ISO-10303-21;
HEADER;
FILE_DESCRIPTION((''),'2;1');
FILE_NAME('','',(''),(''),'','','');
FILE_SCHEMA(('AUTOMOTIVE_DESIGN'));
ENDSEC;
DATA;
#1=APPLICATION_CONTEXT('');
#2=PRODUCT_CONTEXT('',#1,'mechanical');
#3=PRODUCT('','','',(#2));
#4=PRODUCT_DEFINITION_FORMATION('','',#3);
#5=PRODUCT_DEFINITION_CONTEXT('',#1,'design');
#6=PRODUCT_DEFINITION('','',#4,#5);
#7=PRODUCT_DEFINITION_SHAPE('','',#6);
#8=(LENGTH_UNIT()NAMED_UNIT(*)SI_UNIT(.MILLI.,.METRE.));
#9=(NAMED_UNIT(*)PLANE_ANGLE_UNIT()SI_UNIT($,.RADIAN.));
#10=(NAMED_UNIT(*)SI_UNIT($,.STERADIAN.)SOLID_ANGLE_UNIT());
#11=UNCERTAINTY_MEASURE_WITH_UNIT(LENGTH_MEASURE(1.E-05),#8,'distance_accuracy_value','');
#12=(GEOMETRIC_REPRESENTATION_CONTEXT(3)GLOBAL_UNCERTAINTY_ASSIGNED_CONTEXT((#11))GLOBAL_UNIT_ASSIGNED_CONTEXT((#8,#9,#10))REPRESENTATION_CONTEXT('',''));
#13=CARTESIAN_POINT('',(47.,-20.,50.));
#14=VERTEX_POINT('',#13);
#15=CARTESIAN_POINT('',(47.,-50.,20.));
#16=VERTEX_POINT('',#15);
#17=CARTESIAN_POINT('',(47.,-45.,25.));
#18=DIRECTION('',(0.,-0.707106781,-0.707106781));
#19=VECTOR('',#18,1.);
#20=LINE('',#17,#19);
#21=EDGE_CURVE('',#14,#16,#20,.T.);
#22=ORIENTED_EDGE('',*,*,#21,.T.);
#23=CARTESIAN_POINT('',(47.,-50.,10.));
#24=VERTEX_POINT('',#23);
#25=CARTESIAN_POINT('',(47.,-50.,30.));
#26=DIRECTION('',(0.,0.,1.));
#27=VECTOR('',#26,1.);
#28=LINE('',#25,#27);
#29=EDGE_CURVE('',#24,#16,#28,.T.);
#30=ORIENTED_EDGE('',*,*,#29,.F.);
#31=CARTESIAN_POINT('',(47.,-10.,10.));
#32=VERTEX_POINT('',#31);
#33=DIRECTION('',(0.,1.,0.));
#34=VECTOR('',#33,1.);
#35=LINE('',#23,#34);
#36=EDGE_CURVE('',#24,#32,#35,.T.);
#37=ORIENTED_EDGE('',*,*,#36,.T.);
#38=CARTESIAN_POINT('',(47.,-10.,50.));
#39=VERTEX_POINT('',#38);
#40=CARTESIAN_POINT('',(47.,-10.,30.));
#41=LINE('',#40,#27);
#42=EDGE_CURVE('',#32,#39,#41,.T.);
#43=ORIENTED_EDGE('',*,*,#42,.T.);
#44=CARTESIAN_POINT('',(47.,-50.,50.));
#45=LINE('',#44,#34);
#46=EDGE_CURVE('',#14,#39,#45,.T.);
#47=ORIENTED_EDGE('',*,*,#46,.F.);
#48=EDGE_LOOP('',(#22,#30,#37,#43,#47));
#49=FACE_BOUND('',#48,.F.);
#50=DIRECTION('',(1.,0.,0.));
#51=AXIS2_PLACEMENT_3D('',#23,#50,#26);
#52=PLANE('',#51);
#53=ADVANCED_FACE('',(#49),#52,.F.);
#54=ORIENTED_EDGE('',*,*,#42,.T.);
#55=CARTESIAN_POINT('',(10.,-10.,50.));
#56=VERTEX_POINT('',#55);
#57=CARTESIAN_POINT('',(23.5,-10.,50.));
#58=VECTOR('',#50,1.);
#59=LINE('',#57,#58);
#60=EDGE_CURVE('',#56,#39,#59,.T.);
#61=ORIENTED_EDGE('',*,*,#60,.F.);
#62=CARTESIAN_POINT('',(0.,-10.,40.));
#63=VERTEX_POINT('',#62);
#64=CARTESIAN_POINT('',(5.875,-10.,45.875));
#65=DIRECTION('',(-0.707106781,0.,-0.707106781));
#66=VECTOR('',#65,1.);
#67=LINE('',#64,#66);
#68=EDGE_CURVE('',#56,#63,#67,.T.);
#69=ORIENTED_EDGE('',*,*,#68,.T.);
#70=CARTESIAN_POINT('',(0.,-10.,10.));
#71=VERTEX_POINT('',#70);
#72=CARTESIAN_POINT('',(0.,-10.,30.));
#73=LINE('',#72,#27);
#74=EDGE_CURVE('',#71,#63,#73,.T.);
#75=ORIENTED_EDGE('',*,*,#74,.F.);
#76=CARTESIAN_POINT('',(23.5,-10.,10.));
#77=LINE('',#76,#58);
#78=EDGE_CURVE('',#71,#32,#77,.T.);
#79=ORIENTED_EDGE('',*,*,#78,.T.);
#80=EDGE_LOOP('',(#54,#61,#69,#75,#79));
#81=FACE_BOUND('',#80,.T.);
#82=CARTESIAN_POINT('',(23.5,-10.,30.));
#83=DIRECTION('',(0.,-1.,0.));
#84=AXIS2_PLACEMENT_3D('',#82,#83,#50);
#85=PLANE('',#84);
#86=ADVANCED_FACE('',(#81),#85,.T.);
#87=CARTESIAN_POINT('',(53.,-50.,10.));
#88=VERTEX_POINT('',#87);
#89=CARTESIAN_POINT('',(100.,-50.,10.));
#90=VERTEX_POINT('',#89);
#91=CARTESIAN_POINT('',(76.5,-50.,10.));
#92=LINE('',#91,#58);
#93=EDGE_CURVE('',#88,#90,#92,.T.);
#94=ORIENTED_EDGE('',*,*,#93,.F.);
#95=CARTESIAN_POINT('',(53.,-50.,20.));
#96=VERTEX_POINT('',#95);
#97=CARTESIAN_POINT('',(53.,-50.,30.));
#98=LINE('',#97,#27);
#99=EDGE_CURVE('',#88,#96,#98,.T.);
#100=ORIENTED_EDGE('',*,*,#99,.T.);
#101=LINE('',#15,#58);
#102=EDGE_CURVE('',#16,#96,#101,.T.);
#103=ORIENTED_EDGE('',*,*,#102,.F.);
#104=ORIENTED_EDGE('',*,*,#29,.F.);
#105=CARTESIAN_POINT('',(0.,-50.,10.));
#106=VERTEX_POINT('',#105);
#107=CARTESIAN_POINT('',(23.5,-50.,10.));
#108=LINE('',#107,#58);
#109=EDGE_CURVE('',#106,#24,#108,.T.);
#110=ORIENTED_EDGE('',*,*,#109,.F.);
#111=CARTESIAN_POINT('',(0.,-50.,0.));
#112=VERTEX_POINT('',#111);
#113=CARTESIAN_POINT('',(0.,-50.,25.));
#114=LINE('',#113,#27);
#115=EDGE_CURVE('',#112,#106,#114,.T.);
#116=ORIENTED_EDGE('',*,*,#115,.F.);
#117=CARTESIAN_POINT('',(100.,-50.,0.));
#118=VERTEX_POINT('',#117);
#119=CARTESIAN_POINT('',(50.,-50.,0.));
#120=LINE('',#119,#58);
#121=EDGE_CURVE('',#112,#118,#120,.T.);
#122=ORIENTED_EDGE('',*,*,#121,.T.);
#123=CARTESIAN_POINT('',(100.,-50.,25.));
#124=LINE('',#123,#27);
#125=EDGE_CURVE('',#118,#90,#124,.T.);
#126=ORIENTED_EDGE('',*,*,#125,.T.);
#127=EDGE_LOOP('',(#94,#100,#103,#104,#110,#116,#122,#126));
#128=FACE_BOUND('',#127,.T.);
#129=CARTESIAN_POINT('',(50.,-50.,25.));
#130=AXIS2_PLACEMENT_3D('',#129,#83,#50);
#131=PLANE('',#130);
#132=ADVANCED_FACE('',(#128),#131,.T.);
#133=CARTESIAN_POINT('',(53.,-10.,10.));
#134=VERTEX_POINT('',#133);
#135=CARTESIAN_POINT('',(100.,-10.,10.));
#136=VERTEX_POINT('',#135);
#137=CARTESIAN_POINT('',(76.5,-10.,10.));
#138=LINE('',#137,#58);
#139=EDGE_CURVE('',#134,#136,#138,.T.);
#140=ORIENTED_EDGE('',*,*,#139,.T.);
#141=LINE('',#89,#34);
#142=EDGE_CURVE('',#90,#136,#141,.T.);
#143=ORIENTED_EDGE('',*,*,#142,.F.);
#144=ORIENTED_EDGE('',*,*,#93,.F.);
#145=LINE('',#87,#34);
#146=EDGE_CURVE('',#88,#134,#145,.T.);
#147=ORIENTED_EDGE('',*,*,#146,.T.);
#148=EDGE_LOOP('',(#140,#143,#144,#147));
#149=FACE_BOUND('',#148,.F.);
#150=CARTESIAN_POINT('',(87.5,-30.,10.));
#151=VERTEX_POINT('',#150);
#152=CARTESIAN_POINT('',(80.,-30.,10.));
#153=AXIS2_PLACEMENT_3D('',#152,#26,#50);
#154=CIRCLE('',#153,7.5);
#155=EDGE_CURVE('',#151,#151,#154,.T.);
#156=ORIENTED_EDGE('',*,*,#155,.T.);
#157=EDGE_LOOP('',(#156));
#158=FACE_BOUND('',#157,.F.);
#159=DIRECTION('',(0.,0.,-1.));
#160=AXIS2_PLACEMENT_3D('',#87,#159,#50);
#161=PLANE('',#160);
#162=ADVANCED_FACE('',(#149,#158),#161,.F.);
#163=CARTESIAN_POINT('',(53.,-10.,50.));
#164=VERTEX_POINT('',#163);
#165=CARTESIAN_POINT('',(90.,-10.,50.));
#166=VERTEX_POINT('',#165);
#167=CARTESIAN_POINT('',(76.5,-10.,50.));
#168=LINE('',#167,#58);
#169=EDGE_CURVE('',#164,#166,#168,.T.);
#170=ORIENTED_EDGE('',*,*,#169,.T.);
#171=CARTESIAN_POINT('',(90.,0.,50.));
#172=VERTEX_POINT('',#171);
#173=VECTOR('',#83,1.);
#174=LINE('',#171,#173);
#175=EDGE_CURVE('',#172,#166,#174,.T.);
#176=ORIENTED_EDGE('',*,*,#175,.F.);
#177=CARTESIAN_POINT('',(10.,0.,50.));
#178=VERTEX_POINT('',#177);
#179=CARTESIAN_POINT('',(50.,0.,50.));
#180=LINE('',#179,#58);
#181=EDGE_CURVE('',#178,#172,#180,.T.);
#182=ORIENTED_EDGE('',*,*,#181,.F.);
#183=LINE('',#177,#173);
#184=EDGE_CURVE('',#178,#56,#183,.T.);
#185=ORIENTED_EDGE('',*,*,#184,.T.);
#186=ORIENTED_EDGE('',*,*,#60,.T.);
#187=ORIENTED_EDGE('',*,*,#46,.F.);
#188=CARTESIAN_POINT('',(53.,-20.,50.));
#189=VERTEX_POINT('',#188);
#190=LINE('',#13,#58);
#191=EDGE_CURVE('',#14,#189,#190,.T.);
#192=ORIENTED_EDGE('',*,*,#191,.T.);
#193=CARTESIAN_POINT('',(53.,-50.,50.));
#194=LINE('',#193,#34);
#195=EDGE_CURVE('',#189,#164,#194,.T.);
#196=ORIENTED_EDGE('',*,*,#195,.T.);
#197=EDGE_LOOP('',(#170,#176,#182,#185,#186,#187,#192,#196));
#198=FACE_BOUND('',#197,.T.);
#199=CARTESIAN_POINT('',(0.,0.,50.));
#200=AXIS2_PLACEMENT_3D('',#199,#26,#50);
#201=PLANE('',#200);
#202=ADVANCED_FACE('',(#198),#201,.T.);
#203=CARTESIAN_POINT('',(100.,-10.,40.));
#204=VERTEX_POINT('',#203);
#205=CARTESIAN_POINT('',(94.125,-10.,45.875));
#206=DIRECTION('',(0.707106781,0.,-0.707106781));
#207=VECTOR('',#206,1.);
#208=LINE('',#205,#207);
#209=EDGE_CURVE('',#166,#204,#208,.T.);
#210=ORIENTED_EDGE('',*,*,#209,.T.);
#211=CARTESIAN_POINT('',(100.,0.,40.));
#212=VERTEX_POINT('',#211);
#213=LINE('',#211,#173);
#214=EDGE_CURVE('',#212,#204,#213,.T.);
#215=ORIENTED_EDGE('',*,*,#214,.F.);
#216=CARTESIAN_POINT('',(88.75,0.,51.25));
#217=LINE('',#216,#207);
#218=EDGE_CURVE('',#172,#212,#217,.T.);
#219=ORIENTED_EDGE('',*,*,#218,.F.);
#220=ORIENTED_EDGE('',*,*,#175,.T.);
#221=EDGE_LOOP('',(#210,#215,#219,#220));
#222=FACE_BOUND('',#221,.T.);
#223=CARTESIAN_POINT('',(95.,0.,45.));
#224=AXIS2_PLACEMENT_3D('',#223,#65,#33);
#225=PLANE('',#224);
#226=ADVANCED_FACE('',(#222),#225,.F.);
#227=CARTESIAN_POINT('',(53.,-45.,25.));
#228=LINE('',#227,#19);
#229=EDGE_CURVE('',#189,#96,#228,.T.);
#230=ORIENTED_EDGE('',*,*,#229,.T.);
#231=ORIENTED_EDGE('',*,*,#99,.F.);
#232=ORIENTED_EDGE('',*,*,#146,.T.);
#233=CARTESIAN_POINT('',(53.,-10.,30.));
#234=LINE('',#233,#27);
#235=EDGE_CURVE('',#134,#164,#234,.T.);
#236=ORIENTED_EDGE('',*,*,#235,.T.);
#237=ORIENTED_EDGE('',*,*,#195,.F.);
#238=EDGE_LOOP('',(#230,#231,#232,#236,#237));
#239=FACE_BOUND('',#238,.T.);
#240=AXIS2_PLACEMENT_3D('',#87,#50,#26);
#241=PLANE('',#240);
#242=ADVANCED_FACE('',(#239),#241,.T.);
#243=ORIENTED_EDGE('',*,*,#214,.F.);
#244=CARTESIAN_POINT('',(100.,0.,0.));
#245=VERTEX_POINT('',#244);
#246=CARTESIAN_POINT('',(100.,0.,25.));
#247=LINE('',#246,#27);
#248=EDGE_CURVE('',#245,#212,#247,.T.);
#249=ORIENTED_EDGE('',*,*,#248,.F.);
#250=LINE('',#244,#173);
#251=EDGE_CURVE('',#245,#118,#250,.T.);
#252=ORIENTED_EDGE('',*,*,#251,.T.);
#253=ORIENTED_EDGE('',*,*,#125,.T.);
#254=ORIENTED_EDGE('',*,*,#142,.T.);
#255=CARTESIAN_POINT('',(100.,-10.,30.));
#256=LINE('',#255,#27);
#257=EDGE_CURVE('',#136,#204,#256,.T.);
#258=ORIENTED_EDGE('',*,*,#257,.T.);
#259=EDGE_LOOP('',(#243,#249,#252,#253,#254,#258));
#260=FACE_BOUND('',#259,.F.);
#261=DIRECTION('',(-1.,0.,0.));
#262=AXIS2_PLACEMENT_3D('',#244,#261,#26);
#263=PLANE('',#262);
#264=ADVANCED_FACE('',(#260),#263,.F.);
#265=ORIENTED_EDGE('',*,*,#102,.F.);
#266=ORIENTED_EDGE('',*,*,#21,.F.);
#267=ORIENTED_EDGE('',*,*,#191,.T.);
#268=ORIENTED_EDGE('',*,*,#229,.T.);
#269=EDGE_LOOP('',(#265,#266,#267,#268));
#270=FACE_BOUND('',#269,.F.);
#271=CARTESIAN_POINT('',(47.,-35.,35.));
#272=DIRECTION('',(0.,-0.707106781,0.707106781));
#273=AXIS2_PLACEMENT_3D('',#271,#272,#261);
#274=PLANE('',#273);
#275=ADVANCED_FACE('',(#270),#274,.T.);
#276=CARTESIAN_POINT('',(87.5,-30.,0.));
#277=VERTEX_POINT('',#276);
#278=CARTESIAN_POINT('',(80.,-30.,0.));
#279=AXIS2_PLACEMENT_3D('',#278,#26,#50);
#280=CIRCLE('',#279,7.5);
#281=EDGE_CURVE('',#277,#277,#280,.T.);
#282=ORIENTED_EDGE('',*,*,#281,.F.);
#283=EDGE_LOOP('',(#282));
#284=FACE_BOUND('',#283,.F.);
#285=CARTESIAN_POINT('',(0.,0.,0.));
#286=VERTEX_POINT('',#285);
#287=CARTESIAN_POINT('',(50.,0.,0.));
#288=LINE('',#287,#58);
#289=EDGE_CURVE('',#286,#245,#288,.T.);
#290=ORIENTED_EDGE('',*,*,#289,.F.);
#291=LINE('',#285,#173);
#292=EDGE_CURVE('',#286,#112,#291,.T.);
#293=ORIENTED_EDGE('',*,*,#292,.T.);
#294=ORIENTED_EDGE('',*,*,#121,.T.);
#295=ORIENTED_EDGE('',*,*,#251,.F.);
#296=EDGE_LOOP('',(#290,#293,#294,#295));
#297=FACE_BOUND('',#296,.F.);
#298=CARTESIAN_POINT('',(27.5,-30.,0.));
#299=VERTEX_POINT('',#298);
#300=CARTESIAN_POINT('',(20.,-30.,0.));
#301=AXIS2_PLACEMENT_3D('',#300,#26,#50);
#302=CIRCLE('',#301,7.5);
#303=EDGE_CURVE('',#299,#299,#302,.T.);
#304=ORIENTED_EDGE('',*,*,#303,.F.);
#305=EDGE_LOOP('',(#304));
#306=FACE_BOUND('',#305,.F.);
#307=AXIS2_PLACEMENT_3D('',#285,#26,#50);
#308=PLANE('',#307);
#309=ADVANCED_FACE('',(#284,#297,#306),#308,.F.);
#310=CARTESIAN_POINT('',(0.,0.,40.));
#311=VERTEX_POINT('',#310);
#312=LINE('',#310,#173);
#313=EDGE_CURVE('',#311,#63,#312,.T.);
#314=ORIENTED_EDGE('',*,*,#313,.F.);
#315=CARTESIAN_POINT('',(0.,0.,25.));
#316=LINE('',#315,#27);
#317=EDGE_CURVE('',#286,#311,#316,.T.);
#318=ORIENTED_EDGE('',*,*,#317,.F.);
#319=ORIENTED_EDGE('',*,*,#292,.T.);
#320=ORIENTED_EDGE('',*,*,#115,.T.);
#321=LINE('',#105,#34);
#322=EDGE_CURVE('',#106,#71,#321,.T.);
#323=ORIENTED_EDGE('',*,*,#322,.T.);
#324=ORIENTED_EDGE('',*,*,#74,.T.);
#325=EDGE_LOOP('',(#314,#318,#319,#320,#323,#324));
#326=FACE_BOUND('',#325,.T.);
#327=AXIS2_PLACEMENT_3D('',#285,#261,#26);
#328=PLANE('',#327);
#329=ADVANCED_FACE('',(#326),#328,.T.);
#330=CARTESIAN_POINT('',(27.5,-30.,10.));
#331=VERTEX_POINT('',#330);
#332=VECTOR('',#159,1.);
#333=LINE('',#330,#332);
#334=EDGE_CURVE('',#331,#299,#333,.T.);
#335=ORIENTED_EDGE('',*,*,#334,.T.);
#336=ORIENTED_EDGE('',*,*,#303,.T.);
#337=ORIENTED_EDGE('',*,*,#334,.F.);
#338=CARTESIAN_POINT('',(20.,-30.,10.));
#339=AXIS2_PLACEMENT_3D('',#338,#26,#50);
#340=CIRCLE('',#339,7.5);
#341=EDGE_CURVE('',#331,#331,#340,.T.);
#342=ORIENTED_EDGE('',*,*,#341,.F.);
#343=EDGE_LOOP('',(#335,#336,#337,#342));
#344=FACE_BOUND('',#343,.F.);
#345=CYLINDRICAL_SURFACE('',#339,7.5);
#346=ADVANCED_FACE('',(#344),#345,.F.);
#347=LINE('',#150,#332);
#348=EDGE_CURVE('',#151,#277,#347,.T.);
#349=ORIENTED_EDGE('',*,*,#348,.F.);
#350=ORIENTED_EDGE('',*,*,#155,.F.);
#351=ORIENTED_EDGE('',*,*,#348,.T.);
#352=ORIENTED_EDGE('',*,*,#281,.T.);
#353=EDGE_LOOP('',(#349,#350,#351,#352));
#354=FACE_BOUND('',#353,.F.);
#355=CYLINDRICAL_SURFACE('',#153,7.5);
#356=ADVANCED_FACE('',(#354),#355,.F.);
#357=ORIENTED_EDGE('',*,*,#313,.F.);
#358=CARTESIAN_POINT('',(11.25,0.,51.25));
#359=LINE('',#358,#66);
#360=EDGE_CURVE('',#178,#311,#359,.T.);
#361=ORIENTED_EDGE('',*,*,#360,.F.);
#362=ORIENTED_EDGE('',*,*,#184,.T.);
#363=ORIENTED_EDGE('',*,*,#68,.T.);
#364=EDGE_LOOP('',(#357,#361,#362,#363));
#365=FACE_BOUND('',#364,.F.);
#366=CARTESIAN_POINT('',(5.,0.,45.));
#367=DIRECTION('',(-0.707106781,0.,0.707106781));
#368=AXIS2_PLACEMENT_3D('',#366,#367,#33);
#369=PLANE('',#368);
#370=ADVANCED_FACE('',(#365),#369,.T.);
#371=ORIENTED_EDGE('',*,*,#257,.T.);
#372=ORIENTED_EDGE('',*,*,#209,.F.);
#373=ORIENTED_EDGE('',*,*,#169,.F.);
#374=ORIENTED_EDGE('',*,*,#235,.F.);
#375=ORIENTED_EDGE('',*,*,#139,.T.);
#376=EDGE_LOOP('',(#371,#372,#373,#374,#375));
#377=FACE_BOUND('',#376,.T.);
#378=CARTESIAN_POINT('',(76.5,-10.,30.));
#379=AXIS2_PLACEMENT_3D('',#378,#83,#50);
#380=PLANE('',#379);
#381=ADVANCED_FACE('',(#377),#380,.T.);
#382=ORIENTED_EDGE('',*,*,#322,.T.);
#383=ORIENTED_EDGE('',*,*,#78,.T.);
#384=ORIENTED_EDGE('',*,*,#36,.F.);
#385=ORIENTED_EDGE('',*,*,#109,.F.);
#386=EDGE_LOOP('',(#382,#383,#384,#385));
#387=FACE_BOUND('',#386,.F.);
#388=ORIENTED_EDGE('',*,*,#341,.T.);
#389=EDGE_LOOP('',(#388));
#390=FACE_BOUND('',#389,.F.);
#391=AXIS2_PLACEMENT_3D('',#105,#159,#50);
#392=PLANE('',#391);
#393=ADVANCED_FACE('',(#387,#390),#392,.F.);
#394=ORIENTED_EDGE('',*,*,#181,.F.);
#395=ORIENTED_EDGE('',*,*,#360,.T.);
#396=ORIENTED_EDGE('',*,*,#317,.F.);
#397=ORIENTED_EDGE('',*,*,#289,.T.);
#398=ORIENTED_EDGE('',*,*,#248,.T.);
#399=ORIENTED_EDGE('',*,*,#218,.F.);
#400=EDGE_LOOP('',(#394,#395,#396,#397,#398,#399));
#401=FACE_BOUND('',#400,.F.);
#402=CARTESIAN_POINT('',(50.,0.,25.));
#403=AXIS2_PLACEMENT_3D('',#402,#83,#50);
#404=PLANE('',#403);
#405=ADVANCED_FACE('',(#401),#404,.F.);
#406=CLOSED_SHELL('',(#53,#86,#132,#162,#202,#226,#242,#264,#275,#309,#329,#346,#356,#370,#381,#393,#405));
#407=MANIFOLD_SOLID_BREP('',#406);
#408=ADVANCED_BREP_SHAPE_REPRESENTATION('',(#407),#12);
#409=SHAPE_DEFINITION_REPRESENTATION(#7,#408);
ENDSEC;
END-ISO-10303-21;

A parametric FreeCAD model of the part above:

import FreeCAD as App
import Part
import Sketcher


def edges_at(feature, points):
    """Names of the edges that pass closest to the given points."""
    edges = feature.Shape.Edges
    near = lambda p: min(range(len(edges)), key=lambda i: edges[i].distToShape(Part.Vertex(*p))[0])
    return sorted({f"Edge{near(p) + 1}" for p in points})

doc = App.newDocument("Part")
params = doc.addObject("Spreadsheet::Sheet", "Params")
for row, (alias, value) in enumerate([
    ("sketch1_width", "100 mm"),
    ("sketch1_height", "50 mm"),
    ("pad1_length", "50 mm"),
    ("sketch2_width", "47 mm"),
    ("sketch2_height", "40 mm"),
    ("pocket1_length", "40 mm"),
    ("chamfer_size", "30 mm"),
    ("sketch3_diameter", "15 mm"),
    ("chamfer2_size", "10 mm"),
], start=1):
    params.set(f"A{row}", alias)
    params.set(f"B{row}", "=" + value)
    params.setAlias(f"B{row}", alias)

body = doc.addObject("PartDesign::Body", "Body")

# Sketch on XZ plane
sketch1 = body.newObject("Sketcher::SketchObject", "Sketch")
sketch1.AttachmentSupport = (doc.getObject("XZ_Plane"), [""])
sketch1.MapMode = "FlatFace"
sketch1.addGeometry([
    Part.LineSegment(App.Vector(0, 50, 0), App.Vector(0, 0, 0)),
    Part.LineSegment(App.Vector(0, 0, 0), App.Vector(100, 0, 0)),
    Part.LineSegment(App.Vector(100, 0, 0), App.Vector(100, 50, 0)),
    Part.LineSegment(App.Vector(100, 50, 0), App.Vector(0, 50, 0)),
], False)
sketch1.addConstraint([
    Sketcher.Constraint("Coincident", 0, 2, 1, 1),
    Sketcher.Constraint("Coincident", 1, 2, 2, 1),
    Sketcher.Constraint("Coincident", 2, 2, 3, 1),
    Sketcher.Constraint("Coincident", 3, 2, 0, 1),
    Sketcher.Constraint("Vertical", 0),
    Sketcher.Constraint("Horizontal", 1),
    Sketcher.Constraint("Vertical", 2),
    Sketcher.Constraint("Horizontal", 3),
    Sketcher.Constraint("Coincident", 0, 2, -1, 1),
    Sketcher.Constraint("DistanceX", 1, 1, 1, 2, 100.0),
    Sketcher.Constraint("DistanceY", 0, 2, 0, 1, 50.0),
])
sketch1.setExpression("Constraints[9]", "Params.sketch1_width")
sketch1.setExpression("Constraints[10]", "Params.sketch1_height")
pad1 = body.newObject("PartDesign::Pad", "Pad")
pad1.Profile = sketch1
pad1.setExpression("Length", "Params.pad1_length")

# Sketch on XZ plane
sketch2 = body.newObject("Sketcher::SketchObject", "Sketch001")
sketch2.AttachmentSupport = (doc.getObject("XZ_Plane"), [""])
sketch2.MapMode = "FlatFace"
sketch2.AttachmentOffset = App.Placement(App.Vector(0, 0, 50), App.Rotation())
sketch2.addGeometry([
    Part.LineSegment(App.Vector(0, 50, 0), App.Vector(0, 10, 0)),  # 0
    Part.LineSegment(App.Vector(0, 10, 0), App.Vector(47, 10, 0)),  # 1
    Part.LineSegment(App.Vector(47, 10, 0), App.Vector(47, 50, 0)),  # 2
    Part.LineSegment(App.Vector(47, 50, 0), App.Vector(0, 50, 0)),  # 3
    Part.LineSegment(App.Vector(53, 50, 0), App.Vector(53, 10, 0)),  # 4
    Part.LineSegment(App.Vector(53, 10, 0), App.Vector(100, 10, 0)),  # 5
    Part.LineSegment(App.Vector(100, 10, 0), App.Vector(100, 50, 0)),  # 6
    Part.LineSegment(App.Vector(100, 50, 0), App.Vector(53, 50, 0)),  # 7
], False)
sketch2.addConstraint([
    Sketcher.Constraint("Coincident", 0, 2, 1, 1),
    Sketcher.Constraint("Coincident", 1, 2, 2, 1),
    Sketcher.Constraint("Coincident", 2, 2, 3, 1),
    Sketcher.Constraint("Coincident", 3, 2, 0, 1),
    Sketcher.Constraint("Coincident", 4, 2, 5, 1),
    Sketcher.Constraint("Coincident", 5, 2, 6, 1),
    Sketcher.Constraint("Coincident", 6, 2, 7, 1),
    Sketcher.Constraint("Coincident", 7, 2, 4, 1),
    Sketcher.Constraint("Vertical", 0),
    Sketcher.Constraint("Horizontal", 1),
    Sketcher.Constraint("Vertical", 2),
    Sketcher.Constraint("Horizontal", 3),
    Sketcher.Constraint("Vertical", 4),
    Sketcher.Constraint("Horizontal", 5),
    Sketcher.Constraint("Vertical", 6),
    Sketcher.Constraint("Horizontal", 7),
    Sketcher.Constraint("PointOnObject", 0, 2, -2),
    Sketcher.Constraint("Horizontal", 1, 2, 4, 2),
    Sketcher.Constraint("Horizontal", 3, 2, 6, 2),
    Sketcher.Constraint("Equal", 3, 5),
    Sketcher.Constraint("DistanceX", 1, 1, 1, 2, 47.0),
    Sketcher.Constraint("DistanceY", 0, 2, 0, 1, 40.0),
    Sketcher.Constraint("DistanceY", -1, 1, 0, 2, 10.0),
    Sketcher.Constraint("DistanceX", -1, 1, 4, 2, 53.0),
])
sketch2.setExpression("Constraints[20]", "Params.sketch2_width")
sketch2.setExpression("Constraints[21]", "Params.sketch2_height")
pocket1 = body.newObject("PartDesign::Pocket", "Pocket")
pocket1.Profile = sketch2
pocket1.setExpression("Length", "Params.pocket1_length")
doc.recompute()

chamfer = body.newObject("PartDesign::Chamfer", "Chamfer")
chamfer.Base = (pocket1, edges_at(pocket1, [(50, -50, 50)]))
chamfer.setExpression("Size", "Params.chamfer_size")

# Sketch on XY plane
sketch3 = body.newObject("Sketcher::SketchObject", "Sketch002")
sketch3.AttachmentSupport = (doc.getObject("XY_Plane"), [""])
sketch3.MapMode = "FlatFace"
sketch3.AttachmentOffset = App.Placement(App.Vector(0, 0, 10), App.Rotation())
sketch3.addGeometry([
    Part.Circle(App.Vector(20, -30, 0), App.Vector(0, 0, 1), 8),
    Part.Circle(App.Vector(80, -30, 0), App.Vector(0, 0, 1), 8),
], False)
sketch3.addConstraint([
    Sketcher.Constraint("Equal", 0, 1),
    Sketcher.Constraint("Horizontal", 0, 3, 1, 3),
    Sketcher.Constraint("Diameter", 0, 15.0),
    Sketcher.Constraint("DistanceX", -1, 1, 0, 3, 20.0),
    Sketcher.Constraint("DistanceY", 0, 3, -1, 1, 30.0),
    Sketcher.Constraint("DistanceX", -1, 1, 1, 3, 80.0),
])
sketch3.setExpression("Constraints[2]", "Params.sketch3_diameter")
pocket2 = body.newObject("PartDesign::Pocket", "Pocket001")
pocket2.Profile = sketch3
pocket2.Type = "ThroughAll"
doc.recompute()

chamfer2 = body.newObject("PartDesign::Chamfer", "Chamfer001")
chamfer2.Base = (pocket2, edges_at(pocket2, [(100, -5, 50), (0, -5, 50)]))
chamfer2.setExpression("Size", "Params.chamfer2_size")

doc.recompute()
